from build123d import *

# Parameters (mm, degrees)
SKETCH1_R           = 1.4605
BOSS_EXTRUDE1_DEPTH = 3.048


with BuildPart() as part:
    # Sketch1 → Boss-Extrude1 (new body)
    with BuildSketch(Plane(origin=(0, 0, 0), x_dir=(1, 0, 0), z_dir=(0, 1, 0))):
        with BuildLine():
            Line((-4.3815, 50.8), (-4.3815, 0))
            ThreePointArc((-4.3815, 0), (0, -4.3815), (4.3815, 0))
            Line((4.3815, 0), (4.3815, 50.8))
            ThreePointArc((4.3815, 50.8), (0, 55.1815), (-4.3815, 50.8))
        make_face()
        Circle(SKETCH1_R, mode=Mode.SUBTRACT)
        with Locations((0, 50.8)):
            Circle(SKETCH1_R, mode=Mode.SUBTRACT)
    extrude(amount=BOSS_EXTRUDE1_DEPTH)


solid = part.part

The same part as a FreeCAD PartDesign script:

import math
import FreeCAD as App
import Part
import Sketcher
from FreeCAD import Vector
Q = App.Units.Quantity

doc = App.newDocument("Part")
body = doc.addObject("PartDesign::Body", "Body")

# Sketch on XZ plane
sketch1 = doc.addObject("Sketcher::SketchObject", "Sketch")
body.addObject(sketch1)
sketch1.AttachmentSupport = (doc.XZ_Plane, [""])
sketch1.MapMode = "FlatFace"
sketch1.addGeometry(Part.LineSegment(Vector(-4.4, -50.8, 0), Vector(-4.4, 0, 0)), False)
sketch1.addGeometry(Part.ArcOfCircle(Part.Circle(Vector(0, 0, 0), Vector(0, 0, 1), 4.4), math.radians(0), math.radians(180)), False)
sketch1.addGeometry(Part.LineSegment(Vector(4.4, 0, 0), Vector(4.4, -50.8, 0)), False)
sketch1.addGeometry(Part.ArcOfCircle(Part.Circle(Vector(0, -50.8, 0), Vector(0, 0, 1), 4.4), math.radians(180), math.radians(360)), False)
sketch1.addGeometry(Part.Circle(Vector(0, 0, 0), Vector(0, 0, 1), 1.5), False)
sketch1.addGeometry(Part.Circle(Vector(0, -50.8, 0), Vector(0, 0, 1), 1.5), False)
sketch1.addConstraint(Sketcher.Constraint("Tangent", 0, 2, 1, 2))
sketch1.addConstraint(Sketcher.Constraint("Tangent", 1, 1, 2, 1))
sketch1.addConstraint(Sketcher.Constraint("Tangent", 2, 2, 3, 2))
sketch1.addConstraint(Sketcher.Constraint("Tangent", 3, 1, 0, 1))
sketch1.addConstraint(Sketcher.Constraint("Vertical", 0))
sketch1.addConstraint(Sketcher.Constraint("Vertical", 2))
sketch1.addConstraint(Sketcher.Constraint("Coincident", 1, 3, -1, 1))
sketch1.addConstraint(Sketcher.Constraint("Coincident", 4, 3, -1, 1))
sketch1.addConstraint(Sketcher.Constraint("Coincident", 5, 3, 3, 3))
sketch1.addConstraint(Sketcher.Constraint("Equal", 4, 5))
sketch1.addConstraint(Sketcher.Constraint("DistanceY", 0, 1, 0, 2, Q("2 in")))
sketch1.addConstraint(Sketcher.Constraint("Diameter", 4, Q("0.115 in")))
sketch1.addConstraint(Sketcher.Constraint("Radius", 1, Q("0.1725 in")))
pad1 = doc.addObject("PartDesign::Pad", "Pad")
body.addObject(pad1)
pad1.Profile = sketch1
pad1.Length = Q("0.12 in")
pad1.Reversed = True

doc.recompute()
